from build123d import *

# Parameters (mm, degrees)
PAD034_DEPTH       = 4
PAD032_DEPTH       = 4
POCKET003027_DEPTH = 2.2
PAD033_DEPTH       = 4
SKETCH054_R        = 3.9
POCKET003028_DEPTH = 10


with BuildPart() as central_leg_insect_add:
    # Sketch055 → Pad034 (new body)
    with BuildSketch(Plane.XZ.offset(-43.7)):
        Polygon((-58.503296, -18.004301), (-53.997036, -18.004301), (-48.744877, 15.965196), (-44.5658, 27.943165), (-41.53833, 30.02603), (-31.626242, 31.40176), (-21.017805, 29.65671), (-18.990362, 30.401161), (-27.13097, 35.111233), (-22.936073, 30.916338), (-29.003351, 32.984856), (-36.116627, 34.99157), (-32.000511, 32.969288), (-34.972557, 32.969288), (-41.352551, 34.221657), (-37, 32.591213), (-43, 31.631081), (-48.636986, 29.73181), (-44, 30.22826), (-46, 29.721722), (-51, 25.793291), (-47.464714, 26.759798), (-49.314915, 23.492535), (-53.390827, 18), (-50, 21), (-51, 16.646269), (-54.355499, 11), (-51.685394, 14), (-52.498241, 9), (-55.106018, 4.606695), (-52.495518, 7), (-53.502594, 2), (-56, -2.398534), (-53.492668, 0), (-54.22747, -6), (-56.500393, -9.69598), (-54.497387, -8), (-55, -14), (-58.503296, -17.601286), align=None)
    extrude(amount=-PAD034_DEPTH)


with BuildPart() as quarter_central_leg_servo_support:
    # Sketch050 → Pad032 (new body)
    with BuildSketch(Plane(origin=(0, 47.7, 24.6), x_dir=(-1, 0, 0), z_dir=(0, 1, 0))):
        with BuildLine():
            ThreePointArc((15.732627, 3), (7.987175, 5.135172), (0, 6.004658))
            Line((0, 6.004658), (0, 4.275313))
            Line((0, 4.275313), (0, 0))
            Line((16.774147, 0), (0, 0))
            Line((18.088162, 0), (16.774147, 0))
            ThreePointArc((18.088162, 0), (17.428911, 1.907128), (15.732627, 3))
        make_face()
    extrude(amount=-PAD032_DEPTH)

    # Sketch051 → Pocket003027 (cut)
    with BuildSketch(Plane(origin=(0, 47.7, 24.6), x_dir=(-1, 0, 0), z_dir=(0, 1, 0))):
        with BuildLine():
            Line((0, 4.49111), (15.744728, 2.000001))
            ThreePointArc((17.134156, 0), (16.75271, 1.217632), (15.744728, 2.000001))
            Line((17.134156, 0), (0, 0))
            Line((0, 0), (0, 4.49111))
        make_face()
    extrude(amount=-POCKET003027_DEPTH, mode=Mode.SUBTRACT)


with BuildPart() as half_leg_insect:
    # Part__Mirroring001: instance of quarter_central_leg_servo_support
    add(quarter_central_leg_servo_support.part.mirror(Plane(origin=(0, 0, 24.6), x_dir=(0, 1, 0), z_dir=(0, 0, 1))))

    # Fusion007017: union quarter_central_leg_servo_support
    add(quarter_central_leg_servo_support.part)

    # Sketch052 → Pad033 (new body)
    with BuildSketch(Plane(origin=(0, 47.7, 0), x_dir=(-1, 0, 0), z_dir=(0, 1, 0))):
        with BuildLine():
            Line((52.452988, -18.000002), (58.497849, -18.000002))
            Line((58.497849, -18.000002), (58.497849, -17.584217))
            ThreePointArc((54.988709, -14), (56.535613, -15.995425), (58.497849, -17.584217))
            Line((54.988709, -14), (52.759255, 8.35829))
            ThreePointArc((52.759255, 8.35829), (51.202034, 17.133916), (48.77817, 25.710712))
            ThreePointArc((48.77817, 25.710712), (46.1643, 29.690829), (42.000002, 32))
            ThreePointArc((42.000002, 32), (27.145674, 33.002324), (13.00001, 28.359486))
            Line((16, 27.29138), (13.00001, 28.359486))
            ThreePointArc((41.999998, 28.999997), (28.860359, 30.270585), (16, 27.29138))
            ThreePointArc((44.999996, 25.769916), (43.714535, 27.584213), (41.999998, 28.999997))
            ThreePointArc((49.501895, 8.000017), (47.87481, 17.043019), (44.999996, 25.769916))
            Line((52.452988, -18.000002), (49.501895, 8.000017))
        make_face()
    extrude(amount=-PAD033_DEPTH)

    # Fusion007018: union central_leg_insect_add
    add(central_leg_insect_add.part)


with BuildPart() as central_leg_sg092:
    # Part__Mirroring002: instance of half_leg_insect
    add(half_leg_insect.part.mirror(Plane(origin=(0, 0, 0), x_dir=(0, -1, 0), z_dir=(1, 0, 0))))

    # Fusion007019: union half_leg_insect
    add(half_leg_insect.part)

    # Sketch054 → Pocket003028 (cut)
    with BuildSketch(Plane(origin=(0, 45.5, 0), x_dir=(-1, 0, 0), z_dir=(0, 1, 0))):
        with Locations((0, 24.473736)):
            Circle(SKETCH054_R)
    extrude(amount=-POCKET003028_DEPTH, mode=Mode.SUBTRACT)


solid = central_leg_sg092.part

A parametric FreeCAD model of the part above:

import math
import FreeCAD as App
import Part
import Sketcher

V = App.Vector
Q = App.Units.Quantity

doc = App.newDocument("Part")
body = doc.addObject("PartDesign::Body", "Body")

sketch1 = doc.addObject("Sketcher::SketchObject", "Sketch")
body.addObject(sketch1)
sketch1.AttachmentSupport = (doc.XZ_Plane, [""])
sketch1.MapMode = "FlatFace"
sketch1.AttachmentOffset = App.Placement(V(0, 0, -43.7), App.Rotation())
sketch1.addGeometry([
    Part.LineSegment(V(-58.5, -18, 0), V(-54, -18, 0)),
    Part.LineSegment(V(-54, -18, 0), V(-48.74, 15.97, 0)),
    Part.LineSegment(V(-48.74, 15.97, 0), V(-44.57, 27.94, 0)),
    Part.LineSegment(V(-44.57, 27.94, 0), V(-41.54, 30.03, 0)),
    Part.LineSegment(V(-41.54, 30.03, 0), V(-31.63, 31.4, 0)),
    Part.LineSegment(V(-31.63, 31.4, 0), V(-21.02, 29.66, 0)),
    Part.LineSegment(V(-21.02, 29.66, 0), V(-18.99, 30.4, 0)),
    Part.LineSegment(V(-18.99, 30.4, 0), V(-27.13, 35.11, 0)),
    Part.LineSegment(V(-27.13, 35.11, 0), V(-22.94, 30.92, 0)),
    Part.LineSegment(V(-22.94, 30.92, 0), V(-29, 32.98, 0)),
    Part.LineSegment(V(-29, 32.98, 0), V(-36.12, 34.99, 0)),
    Part.LineSegment(V(-36.12, 34.99, 0), V(-32, 32.97, 0)),
    Part.LineSegment(V(-32, 32.97, 0), V(-34.97, 32.97, 0)),
    Part.LineSegment(V(-34.97, 32.97, 0), V(-41.35, 34.22, 0)),
    Part.LineSegment(V(-41.35, 34.22, 0), V(-37, 32.59, 0)),
    Part.LineSegment(V(-37, 32.59, 0), V(-43, 31.63, 0)),
    Part.LineSegment(V(-43, 31.63, 0), V(-48.64, 29.73, 0)),
    Part.LineSegment(V(-48.64, 29.73, 0), V(-44, 30.23, 0)),
    Part.LineSegment(V(-44, 30.23, 0), V(-46, 29.72, 0)),
    Part.LineSegment(V(-46, 29.72, 0), V(-51, 25.79, 0)),
    Part.LineSegment(V(-51, 25.79, 0), V(-47.46, 26.76, 0)),
    Part.LineSegment(V(-47.46, 26.76, 0), V(-49.31, 23.49, 0)),
    Part.LineSegment(V(-49.31, 23.49, 0), V(-53.39, 18, 0)),
    Part.LineSegment(V(-53.39, 18, 0), V(-50, 21, 0)),
    Part.LineSegment(V(-50, 21, 0), V(-51, 16.65, 0)),
    Part.LineSegment(V(-51, 16.65, 0), V(-54.36, 11, 0)),
    Part.LineSegment(V(-54.36, 11, 0), V(-51.69, 14, 0)),
    Part.LineSegment(V(-51.69, 14, 0), V(-52.5, 9, 0)),
    Part.LineSegment(V(-52.5, 9, 0), V(-55.11, 4.61, 0)),
    Part.LineSegment(V(-55.11, 4.61, 0), V(-52.5, 7, 0)),
    Part.LineSegment(V(-52.5, 7, 0), V(-53.5, 2, 0)),
    Part.LineSegment(V(-53.5, 2, 0), V(-56, -2.4, 0)),
    Part.LineSegment(V(-56, -2.4, 0), V(-53.49, 0, 0)),
    Part.LineSegment(V(-53.49, 0, 0), V(-54.23, -6, 0)),
    Part.LineSegment(V(-54.23, -6, 0), V(-56.5, -9.7, 0)),
    Part.LineSegment(V(-56.5, -9.7, 0), V(-54.5, -8, 0)),
    Part.LineSegment(V(-54.5, -8, 0), V(-55, -14, 0)),
    Part.LineSegment(V(-55, -14, 0), V(-58.5, -17.6, 0)),
    Part.LineSegment(V(-58.5, -17.6, 0), V(-58.5, -18, 0)),
], False)
sketch1.addConstraint([
    Sketcher.Constraint("Coincident", 0, 2, 1, 1),
    Sketcher.Constraint("Coincident", 1, 2, 2, 1),
    Sketcher.Constraint("Coincident", 2, 2, 3, 1),
    Sketcher.Constraint("Coincident", 3, 2, 4, 1),
    Sketcher.Constraint("Coincident", 4, 2, 5, 1),
    Sketcher.Constraint("Coincident", 5, 2, 6, 1),
    Sketcher.Constraint("Coincident", 6, 2, 7, 1),
    Sketcher.Constraint("Coincident", 7, 2, 8, 1),
    Sketcher.Constraint("Coincident", 8, 2, 9, 1),
    Sketcher.Constraint("Coincident", 9, 2, 10, 1),
    Sketcher.Constraint("Coincident", 10, 2, 11, 1),
    Sketcher.Constraint("Coincident", 11, 2, 12, 1),
    Sketcher.Constraint("Coincident", 12, 2, 13, 1),
    Sketcher.Constraint("Coincident", 13, 2, 14, 1),
    Sketcher.Constraint("Coincident", 14, 2, 15, 1),
    Sketcher.Constraint("Coincident", 15, 2, 16, 1),
    Sketcher.Constraint("Coincident", 16, 2, 17, 1),
    Sketcher.Constraint("Coincident", 17, 2, 18, 1),
    Sketcher.Constraint("Coincident", 18, 2, 19, 1),
    Sketcher.Constraint("Coincident", 19, 2, 20, 1),
    Sketcher.Constraint("Coincident", 20, 2, 21, 1),
    Sketcher.Constraint("Coincident", 21, 2, 22, 1),
    Sketcher.Constraint("Coincident", 22, 2, 23, 1),
    Sketcher.Constraint("Coincident", 23, 2, 24, 1),
    Sketcher.Constraint("Coincident", 24, 2, 25, 1),
    Sketcher.Constraint("Coincident", 25, 2, 26, 1),
    Sketcher.Constraint("Coincident", 26, 2, 27, 1),
    Sketcher.Constraint("Coincident", 27, 2, 28, 1),
    Sketcher.Constraint("Coincident", 28, 2, 29, 1),
    Sketcher.Constraint("Coincident", 29, 2, 30, 1),
    Sketcher.Constraint("Coincident", 30, 2, 31, 1),
    Sketcher.Constraint("Coincident", 31, 2, 32, 1),
    Sketcher.Constraint("Coincident", 32, 2, 33, 1),
    Sketcher.Constraint("Coincident", 33, 2, 34, 1),
    Sketcher.Constraint("Coincident", 34, 2, 35, 1),
    Sketcher.Constraint("Coincident", 35, 2, 36, 1),
    Sketcher.Constraint("Coincident", 36, 2, 37, 1),
    Sketcher.Constraint("Coincident", 37, 2, 38, 1),
    Sketcher.Constraint("Coincident", 38, 2, 0, 1),
    Sketcher.Constraint("Horizontal", 0),
    Sketcher.Constraint("Horizontal", 12),
    Sketcher.Constraint("Vertical", 38),
    Sketcher.Constraint("PointOnObject", 32, 2, -1),
    Sketcher.Constraint("Vertical", 19, 2, 24, 2),
    Sketcher.Constraint("Angle", 8, Q("-44.999986 deg")),
    Sketcher.Constraint("DistanceX", 14, 2, -1, 1, Q("37 mm")),
    Sketcher.Constraint("DistanceX", 15, 2, -1, 1, Q("43 mm")),
    Sketcher.Constraint("DistanceX", 17, 2, -1, 1, Q("44 mm")),
    Sketcher.Constraint("DistanceX", 18, 2, -1, 1, Q("46 mm")),
    Sketcher.Constraint("DistanceX", 19, 2, -1, 1, Q("51 mm")),
    Sketcher.Constraint("DistanceY", -1, 1, 22, 2, Q("18 mm")),
    Sketcher.Constraint("DistanceX", 23, 2, -1, 1, Q("50 mm")),
    Sketcher.Constraint("DistanceY", -1, 1, 23, 2, Q("21 mm")),
    Sketcher.Constraint("DistanceY", -1, 1, 25, 2, Q("11 mm")),
    Sketcher.Constraint("DistanceY", -1, 1, 26, 2, Q("14 mm")),
    Sketcher.Constraint("DistanceY", -1, 1, 27, 2, Q("9 mm")),
    Sketcher.Constraint("DistanceY", -1, 1, 29, 2, Q("7 mm")),
    Sketcher.Constraint("DistanceY", -1, 1, 30, 2, Q("2 mm")),
    Sketcher.Constraint("DistanceX", 31, 2, -1, 1, Q("56 mm")),
    Sketcher.Constraint("DistanceY", 33, 2, -1, 1, Q("6 mm")),
    Sketcher.Constraint("DistanceY", 35, 2, -1, 1, Q("8 mm")),
    Sketcher.Constraint("DistanceX", 36, 2, -1, 1, Q("55 mm")),
    Sketcher.Constraint("DistanceY", 36, 2, -1, 1, Q("14 mm")),
    Sketcher.Constraint("Distance", 6, Q("2.159799 mm")),
    Sketcher.Constraint("Distance", 24, Q("4.467099 mm")),
    Sketcher.Constraint("DistanceX", 0, 1, 0, 2, Q("4.50626 mm")),
    Sketcher.Constraint("DistanceY", 0, 2, -1, 1, Q("18.004301 mm")),
    Sketcher.Constraint("DistanceX", 2, 2, -1, 1, Q("44.5658 mm")),
    Sketcher.Constraint("DistanceY", -1, 1, 20, 2, Q("26.759798 mm")),
    Sketcher.Constraint("DistanceX", 25, 2, -1, 1, Q("54.355499 mm")),
    Sketcher.Constraint("DistanceY", 6, 2, 4, 2, Q("1.000599 mm")),
    Sketcher.Constraint("DistanceX", 21, 2, 20, 2, Q("1.850201 mm")),
    Sketcher.Constraint("DistanceY", 28, 2, 1, 2, Q("11.358501 mm")),
    Sketcher.Constraint("DistanceX", 28, 2, 29, 2, Q("2.6105 mm")),
    Sketcher.Constraint("DistanceX", 30, 2, 26, 2, Q("1.8172 mm")),
    Sketcher.Constraint("DistanceX", 33, 2, 32, 2, Q("0.734802 mm")),
    Sketcher.Constraint("DistanceX", 34, 2, 30, 2, Q("2.997799 mm")),
    Sketcher.Constraint("Distance", 8, Q("5.932479 mm")),
    Sketcher.Constraint("Distance", 11, Q("4.58607 mm")),
    Sketcher.Constraint("Distance", 13, Q("6.50175 mm")),
    Sketcher.Constraint("Distance", 18, Q("2.063148 mm")),
    Sketcher.Constraint("Distance", 19, Q("6.358661 mm")),
    Sketcher.Constraint("Distance", 20, Q("3.665022 mm")),
    Sketcher.Constraint("Distance", 23, Q("4.527439 mm")),
    Sketcher.Constraint("Distance", 26, Q("4.01615 mm")),
    Sketcher.Constraint("Distance", 27, Q("5.065641 mm")),
    Sketcher.Constraint("Distance", 30, Q("5.100412 mm")),
    Sketcher.Constraint("DistanceX", 12, 2, 12, 1, Q("2.972046 mm")),
    Sketcher.Constraint("DistanceY", 38, 2, 38, 1, Q("0.403015 mm")),
    Sketcher.Constraint("DistanceX", 3, 2, -1, 1, Q("41.53833 mm")),
    Sketcher.Constraint("DistanceY", -1, 1, 3, 2, Q("30.02603 mm")),
    Sketcher.Constraint("DistanceY", -1, 1, 4, 2, Q("31.40176 mm")),
    Sketcher.Constraint("DistanceY", -1, 1, 5, 2, Q("29.65671 mm")),
    Sketcher.Constraint("DistanceX", 7, 2, -1, 1, Q("27.13097 mm")),
    Sketcher.Constraint("DistanceX", 9, 2, -1, 1, Q("29.003351 mm")),
    Sketcher.Constraint("DistanceY", -1, 1, 10, 2, Q("34.99157 mm")),
    Sketcher.Constraint("DistanceX", 11, 2, -1, 1, Q("32.000511 mm")),
    Sketcher.Constraint("DistanceX", 13, 2, -1, 1, Q("41.352551 mm")),
    Sketcher.Constraint("DistanceY", -1, 1, 15, 2, Q("31.631081 mm")),
    Sketcher.Constraint("DistanceY", -1, 1, 16, 2, Q("29.73181 mm")),
    Sketcher.Constraint("DistanceY", -1, 1, 17, 2, Q("30.22826 mm")),
    Sketcher.Constraint("DistanceX", 32, 2, -1, 1, Q("53.492668 mm")),
    Sketcher.Constraint("DistanceY", 34, 2, -1, 1, Q("9.69598 mm")),
    Sketcher.Constraint("DistanceX", 0, 2, 1, 2, Q("5.252159 mm")),
    Sketcher.Constraint("DistanceY", 1, 2, 2, 2, Q("11.977969 mm")),
    Sketcher.Constraint("DistanceX", 3, 2, 4, 2, Q("9.912088 mm")),
    Sketcher.Constraint("DistanceX", 0, 2, 5, 2, Q("32.979231 mm")),
    Sketcher.Constraint("DistanceX", 4, 2, 6, 2, Q("12.63588 mm")),
    Sketcher.Constraint("DistanceY", 8, 2, 4, 2, Q("0.485422 mm")),
    Sketcher.Constraint("DistanceY", 8, 2, 9, 2, Q("2.068518 mm")),
    Sketcher.Constraint("DistanceY", 11, 2, 9, 2, Q("0.015568 mm")),
    Sketcher.Constraint("DistanceX", 16, 2, 20, 2, Q("1.172272 mm")),
    Sketcher.Constraint("DistanceY", 21, 2, 2, 2, Q("4.45063 mm")),
    Sketcher.Constraint("DistanceY", 31, 2, 28, 2, Q("7.005229 mm")),
    Sketcher.Constraint("DistanceX", 35, 2, 32, 2, Q("1.004719 mm")),
    Sketcher.Constraint("Distance", 1, Q("34.373128 mm")),
    Sketcher.Constraint("Distance", 14, Q("4.647908 mm")),
])
pad1 = doc.addObject("PartDesign::Pad", "Pad")
body.addObject(pad1)
pad1.Profile = sketch1
pad1.Length = 4
pad1.Reversed = True
body2 = doc.addObject("PartDesign::Body", "Body001")

sketch2 = doc.addObject("Sketcher::SketchObject", "Sketch001")
body2.addObject(sketch2)
sketch2.AttachmentSupport = (doc.getObject("XZ_Plane001"), [""])
sketch2.MapMode = "FlatFace"
sketch2.AttachmentOffset = App.Placement(V(0, 0, -47.7), App.Rotation())
sketch2.addGeometry([
    Part.ArcOfCircle(Part.Circle(V(1.4, -19.5, 0), V(0, 0, 1), 50.1), math.radians(91.61), math.radians(110.01)),
    Part.LineSegment(V(0, 30.6, 0), V(0, 24.6, 0)),
    Part.LineSegment(V(0, 24.6, 0), V(-18.1, 24.6, 0)),
    Part.ArcOfCircle(Part.Circle(V(-15, 24.6, 0), V(0, 0, 1), 3.1), math.radians(104), math.radians(180)),
], False)
sketch2.addConstraint([
    Sketcher.Constraint("Coincident", 0, 1, 1, 1),
    Sketcher.Constraint("Coincident", 1, 2, 2, 1),
    Sketcher.Constraint("Coincident", 2, 2, 3, 2),
    Sketcher.Constraint("Coincident", 3, 1, 0, 2),
    Sketcher.Constraint("Vertical", 1),
    Sketcher.Constraint("Horizontal", 2),
    Sketcher.Constraint("PointOnObject", 0, 1, -2),
    Sketcher.Constraint("Horizontal", 3, 3, 1, 2),
    Sketcher.Constraint("DistanceX", 3, 3, -1, 1, Q("15.000002 mm")),
    Sketcher.Constraint("DistanceY", 3, 3, 3, 1, Q("2.999999 mm")),
    Sketcher.Constraint("DistanceY", -1, 1, 3, 3, Q("24.600001 mm")),
    Sketcher.Constraint("Radius", 3, Q("3.08816 mm")),
    Sketcher.Constraint("Radius", 0, Q("50.095375 mm")),
    Sketcher.Constraint("DistanceY", 1, 2, 1, 1, Q("6.004658 mm")),
])
pad2 = doc.addObject("PartDesign::Pad", "Pad001")
body2.addObject(pad2)
pad2.Profile = sketch2
pad2.Length = 4

sketch3 = doc.addObject("Sketcher::SketchObject", "Sketch002")
body2.addObject(sketch3)
sketch3.AttachmentSupport = (doc.getObject("XZ_Plane001"), [""])
sketch3.MapMode = "FlatFace"
sketch3.AttachmentOffset = App.Placement(V(0, 0, -47.7), App.Rotation())
sketch3.addGeometry([
    Part.LineSegment(V(-15.7, 26.6, 0), V(0, 29.1, 0)),
    Part.LineSegment(V(0, 29.1, 0), V(0, 24.6, 0)),
    Part.LineSegment(V(0, 24.6, 0), V(-17.1, 24.6, 0)),
    Part.ArcOfCircle(Part.Circle(V(-15, 24.6, 0), V(0, 0, 1), 2.1), math.radians(110), math.radians(180)),
], False)
sketch3.addConstraint([
    Sketcher.Constraint("Coincident", 0, 2, 1, 1),
    Sketcher.Constraint("Coincident", 1, 2, 2, 1),
    Sketcher.Constraint("Coincident", 2, 2, 3, 2),
    Sketcher.Constraint("Coincident", 3, 1, 0, 1),
    Sketcher.Constraint("Vertical", 1),
    Sketcher.Constraint("Horizontal", 2),
    Sketcher.Constraint("PointOnObject", 0, 2, -2),
    Sketcher.Constraint("Horizontal", 3, 3, 1, 2),
    Sketcher.Constraint("DistanceY", 2, 2, 3, 1, Q("2.000001 mm")),
    Sketcher.Constraint("DistanceY", -1, 1, 3, 3, Q("24.599998 mm")),
    Sketcher.Constraint("Radius", 3, Q("2.134159 mm")),
    Sketcher.Constraint("DistanceY", 1, 2, 1, 1, Q("4.49111 mm")),
    Sketcher.Constraint("Distance", 0, Q("15.94058 mm")),
])
pocket1 = doc.addObject("PartDesign::Pocket", "Pocket")
body2.addObject(pocket1)
pocket1.Profile = sketch3
pocket1.Length = 2.2
pocket1.Reversed = True
body3 = doc.addObject("PartDesign::Body", "Body002")
doc.recompute()

mirroring = doc.addObject("Part::Mirroring", "Mirroring")
mirroring.Source = body2
mirroring.Base = V(0, 0, 24.6)
mirroring.Normal = V(0, 0, 1)
body3.BaseFeature = mirroring
doc.recompute()

boolean = doc.addObject("PartDesign::Boolean", "Boolean")
body3.addObject(boolean)
boolean.Type = "Fuse"
boolean.addObjects([body2])

sketch4 = doc.addObject("Sketcher::SketchObject", "Sketch003")
body3.addObject(sketch4)
sketch4.AttachmentSupport = (doc.getObject("XZ_Plane002"), [""])
sketch4.MapMode = "FlatFace"
sketch4.AttachmentOffset = App.Placement(V(0, 0, -47.7), App.Rotation())
sketch4.addGeometry([
    Part.LineSegment(V(-52.45, -18, 0), V(-58.5, -18, 0)),
    Part.LineSegment(V(-58.5, -18, 0), V(-58.5, -17.58, 0)),
    Part.ArcOfCircle(Part.Circle(V(-64.37, -8.32, 0), V(0, 0, 1), 10.97), math.radians(-58), math.radians(-31)),
    Part.LineSegment(V(-54.99, -14, 0), V(-52.76, 8.36, 0)),
    Part.ArcOfCircle(Part.Circle(V(35.87, -2.84, 0), V(0, 0, 1), 89.34), math.radians(161.36), math.radians(172.8)),
    Part.ArcOfCircle(Part.Circle(V(-39.4, 22.4, 0), V(0, 0, 1), 9.95), math.radians(105), math.radians(161)),
    Part.ArcOfCircle(Part.Circle(V(-32, -5.65, 0), V(0, 0, 1), 38.96), math.radians(61), math.radians(105)),
    Part.LineSegment(V(-13, 28.36, 0), V(-16, 27.29, 0)),
    Part.ArcOfCircle(Part.Circle(V(-31.54, -10.56, 0), V(0, 0, 1), 40.92), math.radians(68), math.radians(105)),
    Part.ArcOfCircle(Part.Circle(V(-37.53, 21.84, 0), V(0, 0, 1), 8.44), math.radians(122), math.radians(152)),
    Part.ArcOfCircle(Part.Circle(V(15.71, 0.94, 0), V(0, 0, 1), 65.59), math.radians(157.75), math.radians(173.82)),
    Part.LineSegment(V(-49.5, 8, 0), V(-52.45, -18, 0)),
], False)
sketch4.addConstraint([
    Sketcher.Constraint("Coincident", 0, 2, 1, 1),
    Sketcher.Constraint("Coincident", 1, 2, 2, 1),
    Sketcher.Constraint("Coincident", 2, 2, 3, 1),
    Sketcher.Constraint("Coincident", 3, 2, 4, 2),
    Sketcher.Constraint("Coincident", 4, 1, 5, 2),
    Sketcher.Constraint("Coincident", 5, 1, 6, 2),
    Sketcher.Constraint("Coincident", 6, 1, 7, 1),
    Sketcher.Constraint("Coincident", 7, 2, 8, 1),
    Sketcher.Constraint("Coincident", 8, 2, 9, 1),
    Sketcher.Constraint("Coincident", 9, 2, 10, 1),
    Sketcher.Constraint("Coincident", 10, 2, 11, 1),
    Sketcher.Constraint("Coincident", 11, 2, 0, 1),
    Sketcher.Constraint("Horizontal", 0),
    Sketcher.Constraint("Vertical", 1),
    Sketcher.Constraint("DistanceY", 0, 2, -1, 1, Q("18.000002 mm")),
    Sketcher.Constraint("DistanceY", 2, 2, -1, 1, Q("14 mm")),
    Sketcher.Constraint("DistanceY", -1, 1, 5, 1, Q("32 mm")),
    Sketcher.Constraint("DistanceX", 7, 2, -1, 1, Q("16 mm")),
    Sketcher.Constraint("DistanceX", 8, 2, -1, 1, Q("41.999998 mm")),
    Sketcher.Constraint("DistanceX", 9, 2, 8, 2, Q("2.999998 mm")),
    Sketcher.Constraint("Radius", 6, Q("38.958949 mm")),
    Sketcher.Constraint("Radius", 8, Q("40.917152 mm")),
    Sketcher.Constraint("Radius", 9, Q("8.442869 mm")),
    Sketcher.Constraint("Radius", 2, Q("10.967116 mm")),
    Sketcher.Constraint("Radius", 4, Q("89.338983 mm")),
    Sketcher.Constraint("Radius", 5, Q("9.946987 mm")),
    Sketcher.Constraint("Radius", 10, Q("65.589417 mm")),
    Sketcher.Constraint("DistanceX", 0, 2, 0, 1, Q("6.044861 mm")),
    Sketcher.Constraint("DistanceX", 6, 3, -1, 1, Q("31.998298 mm")),
    Sketcher.Constraint("DistanceY", 8, 3, -1, 1, Q("10.5585 mm")),
    Sketcher.Constraint("DistanceY", -1, 1, 9, 3, Q("21.838598 mm")),
    Sketcher.Constraint("DistanceY", 2, 3, 3, 2, Q("16.681301 mm")),
    Sketcher.Constraint("DistanceY", 9, 3, 8, 2, Q("7.161399 mm")),
    Sketcher.Constraint("DistanceX", 10, 2, 9, 2, Q("4.501899 mm")),
    Sketcher.Constraint("DistanceY", 10, 2, 9, 2, Q("17.769899 mm")),
    Sketcher.Constraint("Distance", 3, Q("22.46917 mm")),
    Sketcher.Constraint("Distance", 7, Q("3.184461 mm")),
    Sketcher.Constraint("DistanceY", 1, 1, 1, 2, Q("0.415785 mm")),
    Sketcher.Constraint("DistanceY", 2, 3, -1, 1, Q("8.323011 mm")),
    Sketcher.Constraint("DistanceY", 4, 3, -1, 1, Q("2.843681 mm")),
    Sketcher.Constraint("DistanceY", 6, 3, -1, 1, Q("5.653228 mm")),
    Sketcher.Constraint("DistanceX", 0, 2, -1, 1, Q("58.497849 mm")),
    Sketcher.Constraint("DistanceX", 4, 1, -1, 1, Q("48.77817 mm")),
])
pad3 = doc.addObject("PartDesign::Pad", "Pad002")
body3.addObject(pad3)
pad3.Profile = sketch4
pad3.Length = 4
doc.recompute()

boolean2 = doc.addObject("PartDesign::Boolean", "Boolean001")
body3.addObject(boolean2)
boolean2.Type = "Fuse"
boolean2.addObjects([body])
body4 = doc.addObject("PartDesign::Body", "Body003")
doc.recompute()

mirroring2 = doc.addObject("Part::Mirroring", "Mirroring001")
mirroring2.Source = body3
mirroring2.Base = V(0, 0, 0)
mirroring2.Normal = V(1, 0, 0)
body4.BaseFeature = mirroring2
doc.recompute()

boolean3 = doc.addObject("PartDesign::Boolean", "Boolean002")
body4.addObject(boolean3)
boolean3.Type = "Fuse"
boolean3.addObjects([body3])

sketch5 = doc.addObject("Sketcher::SketchObject", "Sketch004")
body4.addObject(sketch5)
sketch5.AttachmentSupport = (doc.getObject("XZ_Plane003"), [""])
sketch5.MapMode = "FlatFace"
sketch5.AttachmentOffset = App.Placement(V(0, 0, -45.5), App.Rotation())
sketch5.addGeometry(Part.Circle(V(0, 24.5, 0), V(0, 0, 1), 3.9), False)
sketch5.addConstraint([
    Sketcher.Constraint("PointOnObject", 0, 3, -2),
    Sketcher.Constraint("Diameter", 0, Q("7.8 mm")),
    Sketcher.Constraint("DistanceY", -1, 1, 0, 3, Q("24.473736 mm")),
])
pocket2 = doc.addObject("PartDesign::Pocket", "Pocket001")
body4.addObject(pocket2)
pocket2.Profile = sketch5
pocket2.Length = 10
pocket2.Reversed = True
mirroring.Visibility = False
mirroring2.Visibility = False

doc.recompute()
